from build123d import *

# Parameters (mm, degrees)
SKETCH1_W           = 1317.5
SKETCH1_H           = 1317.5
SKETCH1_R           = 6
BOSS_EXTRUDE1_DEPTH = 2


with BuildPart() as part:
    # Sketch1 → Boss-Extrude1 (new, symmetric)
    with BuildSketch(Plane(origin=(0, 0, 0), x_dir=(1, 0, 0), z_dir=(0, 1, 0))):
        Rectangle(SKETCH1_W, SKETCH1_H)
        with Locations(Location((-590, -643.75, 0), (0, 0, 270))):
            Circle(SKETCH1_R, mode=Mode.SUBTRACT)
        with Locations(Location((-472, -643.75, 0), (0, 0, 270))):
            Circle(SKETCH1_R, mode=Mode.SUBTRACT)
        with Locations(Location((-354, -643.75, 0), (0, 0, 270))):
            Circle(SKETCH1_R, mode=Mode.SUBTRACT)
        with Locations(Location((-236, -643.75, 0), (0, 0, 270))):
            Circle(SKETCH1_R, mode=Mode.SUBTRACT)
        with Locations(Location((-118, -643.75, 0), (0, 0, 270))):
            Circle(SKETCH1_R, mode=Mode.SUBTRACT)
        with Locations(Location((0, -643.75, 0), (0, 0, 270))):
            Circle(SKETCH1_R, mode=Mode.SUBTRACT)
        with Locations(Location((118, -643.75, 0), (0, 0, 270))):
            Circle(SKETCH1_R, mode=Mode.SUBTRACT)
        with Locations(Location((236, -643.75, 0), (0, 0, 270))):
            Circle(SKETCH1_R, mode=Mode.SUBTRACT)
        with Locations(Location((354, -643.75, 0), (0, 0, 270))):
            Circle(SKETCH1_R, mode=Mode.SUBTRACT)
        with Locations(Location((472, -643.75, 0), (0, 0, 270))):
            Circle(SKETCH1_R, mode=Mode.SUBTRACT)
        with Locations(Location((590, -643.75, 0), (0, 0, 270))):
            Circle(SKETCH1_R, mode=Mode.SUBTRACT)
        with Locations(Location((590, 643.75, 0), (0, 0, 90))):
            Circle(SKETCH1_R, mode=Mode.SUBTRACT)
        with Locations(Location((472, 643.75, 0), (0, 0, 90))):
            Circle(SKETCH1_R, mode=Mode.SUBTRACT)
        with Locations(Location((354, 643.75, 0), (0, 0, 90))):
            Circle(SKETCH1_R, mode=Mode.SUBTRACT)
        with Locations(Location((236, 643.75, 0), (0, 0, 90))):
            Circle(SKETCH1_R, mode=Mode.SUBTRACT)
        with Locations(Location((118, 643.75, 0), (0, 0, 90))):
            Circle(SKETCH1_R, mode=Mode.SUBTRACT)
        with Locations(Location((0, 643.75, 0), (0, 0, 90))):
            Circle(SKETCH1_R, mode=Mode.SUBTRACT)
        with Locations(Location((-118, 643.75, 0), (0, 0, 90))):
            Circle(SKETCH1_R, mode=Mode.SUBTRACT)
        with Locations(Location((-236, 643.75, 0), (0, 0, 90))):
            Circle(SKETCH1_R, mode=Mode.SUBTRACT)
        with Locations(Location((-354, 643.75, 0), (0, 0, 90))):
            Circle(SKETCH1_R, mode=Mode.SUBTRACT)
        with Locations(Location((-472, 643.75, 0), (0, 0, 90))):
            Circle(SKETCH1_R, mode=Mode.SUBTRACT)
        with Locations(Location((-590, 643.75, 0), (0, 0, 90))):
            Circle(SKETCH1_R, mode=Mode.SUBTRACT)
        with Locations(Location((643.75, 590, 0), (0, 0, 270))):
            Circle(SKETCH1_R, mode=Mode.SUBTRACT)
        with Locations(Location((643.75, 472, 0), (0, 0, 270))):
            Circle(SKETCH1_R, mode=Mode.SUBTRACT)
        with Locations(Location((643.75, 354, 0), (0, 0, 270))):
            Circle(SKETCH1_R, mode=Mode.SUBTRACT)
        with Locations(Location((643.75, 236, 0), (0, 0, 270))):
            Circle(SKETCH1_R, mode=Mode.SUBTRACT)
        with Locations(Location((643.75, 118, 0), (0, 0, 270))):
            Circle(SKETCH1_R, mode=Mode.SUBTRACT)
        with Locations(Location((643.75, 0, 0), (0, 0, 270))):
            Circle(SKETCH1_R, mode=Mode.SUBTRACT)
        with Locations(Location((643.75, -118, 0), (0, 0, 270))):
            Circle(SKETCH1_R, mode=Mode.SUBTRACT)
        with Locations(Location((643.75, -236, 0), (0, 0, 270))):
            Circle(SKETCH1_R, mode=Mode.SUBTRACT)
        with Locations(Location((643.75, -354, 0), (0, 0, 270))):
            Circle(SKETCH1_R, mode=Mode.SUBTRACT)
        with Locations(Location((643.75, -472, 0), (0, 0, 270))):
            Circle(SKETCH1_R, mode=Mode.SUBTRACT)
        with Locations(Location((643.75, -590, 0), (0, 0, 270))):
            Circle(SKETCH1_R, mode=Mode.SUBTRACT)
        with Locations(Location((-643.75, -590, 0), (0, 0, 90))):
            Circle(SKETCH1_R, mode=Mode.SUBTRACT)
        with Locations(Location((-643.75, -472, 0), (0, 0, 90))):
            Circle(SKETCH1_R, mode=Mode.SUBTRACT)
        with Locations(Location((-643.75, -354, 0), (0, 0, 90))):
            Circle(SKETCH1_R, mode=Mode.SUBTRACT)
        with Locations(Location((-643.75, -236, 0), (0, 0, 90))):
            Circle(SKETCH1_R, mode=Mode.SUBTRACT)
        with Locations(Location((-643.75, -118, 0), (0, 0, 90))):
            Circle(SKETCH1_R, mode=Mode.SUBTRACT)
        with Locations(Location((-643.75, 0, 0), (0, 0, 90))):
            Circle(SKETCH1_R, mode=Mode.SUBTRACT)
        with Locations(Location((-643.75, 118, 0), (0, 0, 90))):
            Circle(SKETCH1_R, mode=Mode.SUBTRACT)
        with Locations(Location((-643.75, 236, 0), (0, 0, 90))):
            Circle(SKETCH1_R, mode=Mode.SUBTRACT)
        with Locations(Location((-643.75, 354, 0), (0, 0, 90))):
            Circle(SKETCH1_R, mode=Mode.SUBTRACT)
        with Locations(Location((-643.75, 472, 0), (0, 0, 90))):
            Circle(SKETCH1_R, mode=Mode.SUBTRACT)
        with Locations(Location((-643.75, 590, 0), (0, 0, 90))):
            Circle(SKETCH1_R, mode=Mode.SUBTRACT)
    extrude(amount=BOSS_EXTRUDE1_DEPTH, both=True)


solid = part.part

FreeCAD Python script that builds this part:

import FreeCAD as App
import Part
import Sketcher
from FreeCAD import Vector


def add_polygon(sketch, points):
    """Adds a closed chain of lines whose ends are joined by coincident constraints."""
    first, n = sketch.GeometryCount, len(points)
    for a, b in zip(points, points[1:] + points[:1]):
        sketch.addGeometry(Part.LineSegment(App.Vector(*a, 0), App.Vector(*b, 0)), False)
    for i in range(n):
        sketch.addConstraint(Sketcher.Constraint("Coincident", first + i, 2, first + (i + 1) % n, 1))

doc = App.newDocument("Part")
body = doc.addObject("PartDesign::Body", "Body")

sketch1 = doc.addObject("Sketcher::SketchObject", "Sketch")
body.addObject(sketch1)
sketch1.AttachmentSupport = (doc.XZ_Plane, [""])
sketch1.MapMode = "FlatFace"
add_polygon(sketch1, [(-658.75, -658.75), (-658.75, 658.75), (658.75, 658.75), (658.75, -658.75)])
sketch1.addGeometry(Part.Circle(Vector(-590, 643.75, 0), Vector(0, 0, 1), 6), False)
sketch1.addGeometry(Part.Circle(Vector(-643.75, 590, 0), Vector(0, 0, 1), 6), False)
sketch1.addGeometry(Part.Circle(Vector(-472, 643.75, 0), Vector(0, 0, 1), 6), False)
sketch1.addGeometry(Part.Circle(Vector(-354, 643.75, 0), Vector(0, 0, 1), 6), False)
sketch1.addGeometry(Part.Circle(Vector(-643.75, 472, 0), Vector(0, 0, 1), 6), False)
sketch1.addGeometry(Part.Circle(Vector(-643.75, 354, 0), Vector(0, 0, 1), 6), False)
sketch1.addGeometry(Part.Circle(Vector(-236, 643.75, 0), Vector(0, 0, 1), 6), False)
sketch1.addGeometry(Part.Circle(Vector(-118, 643.75, 0), Vector(0, 0, 1), 6), False)
sketch1.addGeometry(Part.Circle(Vector(-643.75, 236, 0), Vector(0, 0, 1), 6), False)
sketch1.addGeometry(Part.Circle(Vector(-643.75, 118, 0), Vector(0, 0, 1), 6), False)
sketch1.addGeometry(Part.Circle(Vector(0, 643.75, 0), Vector(0, 0, 1), 6), False)
sketch1.addGeometry(Part.Circle(Vector(118, 643.75, 0), Vector(0, 0, 1), 6), False)
sketch1.addGeometry(Part.Circle(Vector(236, 643.75, 0), Vector(0, 0, 1), 6), False)
sketch1.addGeometry(Part.Circle(Vector(354, 643.75, 0), Vector(0, 0, 1), 6), False)
sketch1.addGeometry(Part.Circle(Vector(472, 643.75, 0), Vector(0, 0, 1), 6), False)
sketch1.addGeometry(Part.Circle(Vector(590, 643.75, 0), Vector(0, 0, 1), 6), False)
sketch1.addGeometry(Part.Circle(Vector(643.75, 590, 0), Vector(0, 0, 1), 6), False)
sketch1.addGeometry(Part.Circle(Vector(643.75, 472, 0), Vector(0, 0, 1), 6), False)
sketch1.addGeometry(Part.Circle(Vector(643.75, 354, 0), Vector(0, 0, 1), 6), False)
sketch1.addGeometry(Part.Circle(Vector(643.75, 236, 0), Vector(0, 0, 1), 6), False)
sketch1.addGeometry(Part.Circle(Vector(643.75, 118, 0), Vector(0, 0, 1), 6), False)
sketch1.addGeometry(Part.Circle(Vector(-643.75, 0, 0), Vector(0, 0, 1), 6), False)
sketch1.addGeometry(Part.Circle(Vector(-643.75, -118, 0), Vector(0, 0, 1), 6), False)
sketch1.addGeometry(Part.Circle(Vector(-643.75, -236, 0), Vector(0, 0, 1), 6), False)
sketch1.addGeometry(Part.Circle(Vector(-643.75, -354, 0), Vector(0, 0, 1), 6), False)
sketch1.addGeometry(Part.Circle(Vector(-643.75, -472, 0), Vector(0, 0, 1), 6), False)
sketch1.addGeometry(Part.Circle(Vector(-643.75, -590, 0), Vector(0, 0, 1), 6), False)
sketch1.addGeometry(Part.Circle(Vector(-590, -643.75, 0), Vector(0, 0, 1), 6), False)
sketch1.addGeometry(Part.Circle(Vector(-472, -643.75, 0), Vector(0, 0, 1), 6), False)
sketch1.addGeometry(Part.Circle(Vector(-354, -643.75, 0), Vector(0, 0, 1), 6), False)
sketch1.addGeometry(Part.Circle(Vector(-236, -643.75, 0), Vector(0, 0, 1), 6), False)
sketch1.addGeometry(Part.Circle(Vector(-118, -643.75, 0), Vector(0, 0, 1), 6), False)
sketch1.addGeometry(Part.Circle(Vector(643.75, 0, 0), Vector(0, 0, 1), 6), False)
sketch1.addGeometry(Part.Circle(Vector(643.75, -118, 0), Vector(0, 0, 1), 6), False)
sketch1.addGeometry(Part.Circle(Vector(643.75, -236, 0), Vector(0, 0, 1), 6), False)
sketch1.addGeometry(Part.Circle(Vector(0, -643.75, 0), Vector(0, 0, 1), 6), False)
sketch1.addGeometry(Part.Circle(Vector(118, -643.75, 0), Vector(0, 0, 1), 6), False)
sketch1.addGeometry(Part.Circle(Vector(236, -643.75, 0), Vector(0, 0, 1), 6), False)
sketch1.addGeometry(Part.Circle(Vector(643.75, -354, 0), Vector(0, 0, 1), 6), False)
sketch1.addGeometry(Part.Circle(Vector(643.75, -472, 0), Vector(0, 0, 1), 6), False)
sketch1.addGeometry(Part.Circle(Vector(354, -643.75, 0), Vector(0, 0, 1), 6), False)
sketch1.addGeometry(Part.Circle(Vector(472, -643.75, 0), Vector(0, 0, 1), 6), False)
sketch1.addGeometry(Part.Circle(Vector(643.75, -590, 0), Vector(0, 0, 1), 6), False)
sketch1.addGeometry(Part.Circle(Vector(590, -643.75, 0), Vector(0, 0, 1), 6), False)
sketch1.addConstraint([
    Sketcher.Constraint("Vertical", 0),
    Sketcher.Constraint("Horizontal", 1),
    Sketcher.Constraint("Vertical", 2),
    Sketcher.Constraint("Horizontal", 3),
    Sketcher.Constraint("Equal", 4, 5),
    Sketcher.Constraint("Equal", 5, 6),
    Sketcher.Constraint("Equal", 6, 7),
    Sketcher.Constraint("Equal", 7, 8),
    Sketcher.Constraint("Equal", 8, 9),
    Sketcher.Constraint("Equal", 9, 10),
    Sketcher.Constraint("Equal", 10, 11),
    Sketcher.Constraint("Equal", 11, 12),
    Sketcher.Constraint("Equal", 12, 13),
    Sketcher.Constraint("Equal", 13, 14),
    Sketcher.Constraint("Equal", 14, 15),
    Sketcher.Constraint("Equal", 15, 16),
    Sketcher.Constraint("Equal", 16, 17),
    Sketcher.Constraint("Equal", 17, 18),
    Sketcher.Constraint("Equal", 18, 19),
    Sketcher.Constraint("Equal", 19, 20),
    Sketcher.Constraint("Equal", 20, 21),
    Sketcher.Constraint("Equal", 21, 22),
    Sketcher.Constraint("Equal", 22, 23),
    Sketcher.Constraint("Equal", 23, 24),
    Sketcher.Constraint("Equal", 24, 25),
    Sketcher.Constraint("Equal", 25, 26),
    Sketcher.Constraint("Equal", 26, 27),
    Sketcher.Constraint("Equal", 27, 28),
    Sketcher.Constraint("Equal", 28, 29),
    Sketcher.Constraint("Equal", 29, 30),
    Sketcher.Constraint("Equal", 30, 31),
    Sketcher.Constraint("Equal", 31, 32),
    Sketcher.Constraint("Equal", 32, 33),
    Sketcher.Constraint("Equal", 33, 34),
    Sketcher.Constraint("Equal", 34, 35),
    Sketcher.Constraint("Equal", 35, 36),
    Sketcher.Constraint("Equal", 36, 37),
    Sketcher.Constraint("Equal", 37, 38),
    Sketcher.Constraint("Equal", 38, 39),
    Sketcher.Constraint("Equal", 39, 40),
    Sketcher.Constraint("Equal", 40, 41),
    Sketcher.Constraint("Equal", 41, 42),
    Sketcher.Constraint("Equal", 42, 43),
    Sketcher.Constraint("Equal", 43, 44),
    Sketcher.Constraint("Equal", 44, 45),
    Sketcher.Constraint("Equal", 45, 46),
    Sketcher.Constraint("Equal", 46, 47),
    Sketcher.Constraint("Symmetric", 24, 3, 26, 3, -1, 1),
    Sketcher.Constraint("Symmetric", 23, 3, 27, 3, -1, 1),
    Sketcher.Constraint("Symmetric", 22, 3, 28, 3, -1, 1),
    Sketcher.Constraint("Symmetric", 21, 3, 29, 3, -1, 1),
    Sketcher.Constraint("Symmetric", 20, 3, 30, 3, -1, 1),
    Sketcher.Constraint("Symmetric", 19, 3, 31, 3, -1, 1),
    Sketcher.Constraint("Symmetric", 18, 3, 32, 3, -1, 1),
    Sketcher.Constraint("Symmetric", 17, 3, 33, 3, -1, 1),
    Sketcher.Constraint("Symmetric", 16, 3, 34, 3, -1, 1),
    Sketcher.Constraint("Symmetric", 15, 3, 35, 3, -1, 1),
    Sketcher.Constraint("Symmetric", 25, 3, 36, 3, -1, 1),
    Sketcher.Constraint("Symmetric", 13, 3, 37, 3, -1, 1),
    Sketcher.Constraint("Symmetric", 12, 3, 38, 3, -1, 1),
    Sketcher.Constraint("Symmetric", 14, 3, 39, 3, -1, 1),
    Sketcher.Constraint("Symmetric", 11, 3, 40, 3, -1, 1),
    Sketcher.Constraint("Symmetric", 10, 3, 41, 3, -1, 1),
    Sketcher.Constraint("Symmetric", 9, 3, 42, 3, -1, 1),
    Sketcher.Constraint("Symmetric", 8, 3, 43, 3, -1, 1),
    Sketcher.Constraint("Symmetric", 7, 3, 44, 3, -1, 1),
    Sketcher.Constraint("Symmetric", 6, 3, 45, 3, -1, 1),
    Sketcher.Constraint("Symmetric", 5, 3, 46, 3, -1, 1),
    Sketcher.Constraint("Symmetric", 4, 3, 47, 3, -1, 1),
    Sketcher.Constraint("Symmetric", 0, 2, 2, 2, -1, 1),
    Sketcher.Constraint("Symmetric", 11, 3, 15, 3, -2),
    Sketcher.Constraint("Symmetric", 10, 3, 16, 3, -2),
    Sketcher.Constraint("Symmetric", 7, 3, 17, 3, -2),
    Sketcher.Constraint("Symmetric", 6, 3, 18, 3, -2),
    Sketcher.Constraint("Symmetric", 4, 3, 19, 3, -2),
    Sketcher.Constraint("Symmetric", 5, 3, 20, 3, -2),
    Sketcher.Constraint("Symmetric", 8, 3, 21, 3, -2),
    Sketcher.Constraint("Symmetric", 9, 3, 22, 3, -2),
    Sketcher.Constraint("Symmetric", 12, 3, 23, 3, -2),
    Sketcher.Constraint("Symmetric", 13, 3, 24, 3, -2),
    Sketcher.Constraint("PointOnObject", 14, 3, -2),
    Sketcher.Constraint("PointOnObject", 25, 3, -1),
    Sketcher.Constraint("Horizontal", 4, 3, 6, 3),
    Sketcher.Constraint("Horizontal", 6, 3, 7, 3),
    Sketcher.Constraint("Horizontal", 7, 3, 10, 3),
    Sketcher.Constraint("Horizontal", 10, 3, 11, 3),
    Sketcher.Constraint("Horizontal", 11, 3, 14, 3),
    Sketcher.Constraint("Vertical", 5, 3, 8, 3),
    Sketcher.Constraint("Vertical", 8, 3, 9, 3),
    Sketcher.Constraint("Vertical", 9, 3, 12, 3),
    Sketcher.Constraint("Vertical", 12, 3, 13, 3),
    Sketcher.Constraint("Vertical", 13, 3, 25, 3),
    Sketcher.Constraint("Equal", 3, 0),
    Sketcher.Constraint("Diameter", 4, 12.0),
    Sketcher.Constraint("DistanceX", 1, 1, 1, 2, 1317.5),
    Sketcher.Constraint("DistanceX", 4, 3, -1, 1, 590.0),
    Sketcher.Constraint("DistanceY", -1, 1, 5, 3, 590.0),
    Sketcher.Constraint("DistanceX", 6, 3, -1, 1, 472.0),
    Sketcher.Constraint("DistanceX", 7, 3, -1, 1, 354.0),
    Sketcher.Constraint("DistanceY", -1, 1, 8, 3, 472.0),
    Sketcher.Constraint("DistanceY", -1, 1, 9, 3, 354.0),
    Sketcher.Constraint("DistanceX", 10, 3, -1, 1, 236.0),
    Sketcher.Constraint("DistanceX", 11, 3, -1, 1, 118.0),
    Sketcher.Constraint("DistanceY", -1, 1, 12, 3, 236.0),
    Sketcher.Constraint("DistanceY", -1, 1, 13, 3, 118.0),
    Sketcher.Constraint("DistanceY", 4, 3, 0, 2, 15.0),
    Sketcher.Constraint("DistanceX", 0, 2, 5, 3, 15.0),
])
pad1 = doc.addObject("PartDesign::Pad", "Pad")
body.addObject(pad1)
pad1.Profile = sketch1
pad1.Length = 4
pad1.Midplane = True

doc.recompute()
